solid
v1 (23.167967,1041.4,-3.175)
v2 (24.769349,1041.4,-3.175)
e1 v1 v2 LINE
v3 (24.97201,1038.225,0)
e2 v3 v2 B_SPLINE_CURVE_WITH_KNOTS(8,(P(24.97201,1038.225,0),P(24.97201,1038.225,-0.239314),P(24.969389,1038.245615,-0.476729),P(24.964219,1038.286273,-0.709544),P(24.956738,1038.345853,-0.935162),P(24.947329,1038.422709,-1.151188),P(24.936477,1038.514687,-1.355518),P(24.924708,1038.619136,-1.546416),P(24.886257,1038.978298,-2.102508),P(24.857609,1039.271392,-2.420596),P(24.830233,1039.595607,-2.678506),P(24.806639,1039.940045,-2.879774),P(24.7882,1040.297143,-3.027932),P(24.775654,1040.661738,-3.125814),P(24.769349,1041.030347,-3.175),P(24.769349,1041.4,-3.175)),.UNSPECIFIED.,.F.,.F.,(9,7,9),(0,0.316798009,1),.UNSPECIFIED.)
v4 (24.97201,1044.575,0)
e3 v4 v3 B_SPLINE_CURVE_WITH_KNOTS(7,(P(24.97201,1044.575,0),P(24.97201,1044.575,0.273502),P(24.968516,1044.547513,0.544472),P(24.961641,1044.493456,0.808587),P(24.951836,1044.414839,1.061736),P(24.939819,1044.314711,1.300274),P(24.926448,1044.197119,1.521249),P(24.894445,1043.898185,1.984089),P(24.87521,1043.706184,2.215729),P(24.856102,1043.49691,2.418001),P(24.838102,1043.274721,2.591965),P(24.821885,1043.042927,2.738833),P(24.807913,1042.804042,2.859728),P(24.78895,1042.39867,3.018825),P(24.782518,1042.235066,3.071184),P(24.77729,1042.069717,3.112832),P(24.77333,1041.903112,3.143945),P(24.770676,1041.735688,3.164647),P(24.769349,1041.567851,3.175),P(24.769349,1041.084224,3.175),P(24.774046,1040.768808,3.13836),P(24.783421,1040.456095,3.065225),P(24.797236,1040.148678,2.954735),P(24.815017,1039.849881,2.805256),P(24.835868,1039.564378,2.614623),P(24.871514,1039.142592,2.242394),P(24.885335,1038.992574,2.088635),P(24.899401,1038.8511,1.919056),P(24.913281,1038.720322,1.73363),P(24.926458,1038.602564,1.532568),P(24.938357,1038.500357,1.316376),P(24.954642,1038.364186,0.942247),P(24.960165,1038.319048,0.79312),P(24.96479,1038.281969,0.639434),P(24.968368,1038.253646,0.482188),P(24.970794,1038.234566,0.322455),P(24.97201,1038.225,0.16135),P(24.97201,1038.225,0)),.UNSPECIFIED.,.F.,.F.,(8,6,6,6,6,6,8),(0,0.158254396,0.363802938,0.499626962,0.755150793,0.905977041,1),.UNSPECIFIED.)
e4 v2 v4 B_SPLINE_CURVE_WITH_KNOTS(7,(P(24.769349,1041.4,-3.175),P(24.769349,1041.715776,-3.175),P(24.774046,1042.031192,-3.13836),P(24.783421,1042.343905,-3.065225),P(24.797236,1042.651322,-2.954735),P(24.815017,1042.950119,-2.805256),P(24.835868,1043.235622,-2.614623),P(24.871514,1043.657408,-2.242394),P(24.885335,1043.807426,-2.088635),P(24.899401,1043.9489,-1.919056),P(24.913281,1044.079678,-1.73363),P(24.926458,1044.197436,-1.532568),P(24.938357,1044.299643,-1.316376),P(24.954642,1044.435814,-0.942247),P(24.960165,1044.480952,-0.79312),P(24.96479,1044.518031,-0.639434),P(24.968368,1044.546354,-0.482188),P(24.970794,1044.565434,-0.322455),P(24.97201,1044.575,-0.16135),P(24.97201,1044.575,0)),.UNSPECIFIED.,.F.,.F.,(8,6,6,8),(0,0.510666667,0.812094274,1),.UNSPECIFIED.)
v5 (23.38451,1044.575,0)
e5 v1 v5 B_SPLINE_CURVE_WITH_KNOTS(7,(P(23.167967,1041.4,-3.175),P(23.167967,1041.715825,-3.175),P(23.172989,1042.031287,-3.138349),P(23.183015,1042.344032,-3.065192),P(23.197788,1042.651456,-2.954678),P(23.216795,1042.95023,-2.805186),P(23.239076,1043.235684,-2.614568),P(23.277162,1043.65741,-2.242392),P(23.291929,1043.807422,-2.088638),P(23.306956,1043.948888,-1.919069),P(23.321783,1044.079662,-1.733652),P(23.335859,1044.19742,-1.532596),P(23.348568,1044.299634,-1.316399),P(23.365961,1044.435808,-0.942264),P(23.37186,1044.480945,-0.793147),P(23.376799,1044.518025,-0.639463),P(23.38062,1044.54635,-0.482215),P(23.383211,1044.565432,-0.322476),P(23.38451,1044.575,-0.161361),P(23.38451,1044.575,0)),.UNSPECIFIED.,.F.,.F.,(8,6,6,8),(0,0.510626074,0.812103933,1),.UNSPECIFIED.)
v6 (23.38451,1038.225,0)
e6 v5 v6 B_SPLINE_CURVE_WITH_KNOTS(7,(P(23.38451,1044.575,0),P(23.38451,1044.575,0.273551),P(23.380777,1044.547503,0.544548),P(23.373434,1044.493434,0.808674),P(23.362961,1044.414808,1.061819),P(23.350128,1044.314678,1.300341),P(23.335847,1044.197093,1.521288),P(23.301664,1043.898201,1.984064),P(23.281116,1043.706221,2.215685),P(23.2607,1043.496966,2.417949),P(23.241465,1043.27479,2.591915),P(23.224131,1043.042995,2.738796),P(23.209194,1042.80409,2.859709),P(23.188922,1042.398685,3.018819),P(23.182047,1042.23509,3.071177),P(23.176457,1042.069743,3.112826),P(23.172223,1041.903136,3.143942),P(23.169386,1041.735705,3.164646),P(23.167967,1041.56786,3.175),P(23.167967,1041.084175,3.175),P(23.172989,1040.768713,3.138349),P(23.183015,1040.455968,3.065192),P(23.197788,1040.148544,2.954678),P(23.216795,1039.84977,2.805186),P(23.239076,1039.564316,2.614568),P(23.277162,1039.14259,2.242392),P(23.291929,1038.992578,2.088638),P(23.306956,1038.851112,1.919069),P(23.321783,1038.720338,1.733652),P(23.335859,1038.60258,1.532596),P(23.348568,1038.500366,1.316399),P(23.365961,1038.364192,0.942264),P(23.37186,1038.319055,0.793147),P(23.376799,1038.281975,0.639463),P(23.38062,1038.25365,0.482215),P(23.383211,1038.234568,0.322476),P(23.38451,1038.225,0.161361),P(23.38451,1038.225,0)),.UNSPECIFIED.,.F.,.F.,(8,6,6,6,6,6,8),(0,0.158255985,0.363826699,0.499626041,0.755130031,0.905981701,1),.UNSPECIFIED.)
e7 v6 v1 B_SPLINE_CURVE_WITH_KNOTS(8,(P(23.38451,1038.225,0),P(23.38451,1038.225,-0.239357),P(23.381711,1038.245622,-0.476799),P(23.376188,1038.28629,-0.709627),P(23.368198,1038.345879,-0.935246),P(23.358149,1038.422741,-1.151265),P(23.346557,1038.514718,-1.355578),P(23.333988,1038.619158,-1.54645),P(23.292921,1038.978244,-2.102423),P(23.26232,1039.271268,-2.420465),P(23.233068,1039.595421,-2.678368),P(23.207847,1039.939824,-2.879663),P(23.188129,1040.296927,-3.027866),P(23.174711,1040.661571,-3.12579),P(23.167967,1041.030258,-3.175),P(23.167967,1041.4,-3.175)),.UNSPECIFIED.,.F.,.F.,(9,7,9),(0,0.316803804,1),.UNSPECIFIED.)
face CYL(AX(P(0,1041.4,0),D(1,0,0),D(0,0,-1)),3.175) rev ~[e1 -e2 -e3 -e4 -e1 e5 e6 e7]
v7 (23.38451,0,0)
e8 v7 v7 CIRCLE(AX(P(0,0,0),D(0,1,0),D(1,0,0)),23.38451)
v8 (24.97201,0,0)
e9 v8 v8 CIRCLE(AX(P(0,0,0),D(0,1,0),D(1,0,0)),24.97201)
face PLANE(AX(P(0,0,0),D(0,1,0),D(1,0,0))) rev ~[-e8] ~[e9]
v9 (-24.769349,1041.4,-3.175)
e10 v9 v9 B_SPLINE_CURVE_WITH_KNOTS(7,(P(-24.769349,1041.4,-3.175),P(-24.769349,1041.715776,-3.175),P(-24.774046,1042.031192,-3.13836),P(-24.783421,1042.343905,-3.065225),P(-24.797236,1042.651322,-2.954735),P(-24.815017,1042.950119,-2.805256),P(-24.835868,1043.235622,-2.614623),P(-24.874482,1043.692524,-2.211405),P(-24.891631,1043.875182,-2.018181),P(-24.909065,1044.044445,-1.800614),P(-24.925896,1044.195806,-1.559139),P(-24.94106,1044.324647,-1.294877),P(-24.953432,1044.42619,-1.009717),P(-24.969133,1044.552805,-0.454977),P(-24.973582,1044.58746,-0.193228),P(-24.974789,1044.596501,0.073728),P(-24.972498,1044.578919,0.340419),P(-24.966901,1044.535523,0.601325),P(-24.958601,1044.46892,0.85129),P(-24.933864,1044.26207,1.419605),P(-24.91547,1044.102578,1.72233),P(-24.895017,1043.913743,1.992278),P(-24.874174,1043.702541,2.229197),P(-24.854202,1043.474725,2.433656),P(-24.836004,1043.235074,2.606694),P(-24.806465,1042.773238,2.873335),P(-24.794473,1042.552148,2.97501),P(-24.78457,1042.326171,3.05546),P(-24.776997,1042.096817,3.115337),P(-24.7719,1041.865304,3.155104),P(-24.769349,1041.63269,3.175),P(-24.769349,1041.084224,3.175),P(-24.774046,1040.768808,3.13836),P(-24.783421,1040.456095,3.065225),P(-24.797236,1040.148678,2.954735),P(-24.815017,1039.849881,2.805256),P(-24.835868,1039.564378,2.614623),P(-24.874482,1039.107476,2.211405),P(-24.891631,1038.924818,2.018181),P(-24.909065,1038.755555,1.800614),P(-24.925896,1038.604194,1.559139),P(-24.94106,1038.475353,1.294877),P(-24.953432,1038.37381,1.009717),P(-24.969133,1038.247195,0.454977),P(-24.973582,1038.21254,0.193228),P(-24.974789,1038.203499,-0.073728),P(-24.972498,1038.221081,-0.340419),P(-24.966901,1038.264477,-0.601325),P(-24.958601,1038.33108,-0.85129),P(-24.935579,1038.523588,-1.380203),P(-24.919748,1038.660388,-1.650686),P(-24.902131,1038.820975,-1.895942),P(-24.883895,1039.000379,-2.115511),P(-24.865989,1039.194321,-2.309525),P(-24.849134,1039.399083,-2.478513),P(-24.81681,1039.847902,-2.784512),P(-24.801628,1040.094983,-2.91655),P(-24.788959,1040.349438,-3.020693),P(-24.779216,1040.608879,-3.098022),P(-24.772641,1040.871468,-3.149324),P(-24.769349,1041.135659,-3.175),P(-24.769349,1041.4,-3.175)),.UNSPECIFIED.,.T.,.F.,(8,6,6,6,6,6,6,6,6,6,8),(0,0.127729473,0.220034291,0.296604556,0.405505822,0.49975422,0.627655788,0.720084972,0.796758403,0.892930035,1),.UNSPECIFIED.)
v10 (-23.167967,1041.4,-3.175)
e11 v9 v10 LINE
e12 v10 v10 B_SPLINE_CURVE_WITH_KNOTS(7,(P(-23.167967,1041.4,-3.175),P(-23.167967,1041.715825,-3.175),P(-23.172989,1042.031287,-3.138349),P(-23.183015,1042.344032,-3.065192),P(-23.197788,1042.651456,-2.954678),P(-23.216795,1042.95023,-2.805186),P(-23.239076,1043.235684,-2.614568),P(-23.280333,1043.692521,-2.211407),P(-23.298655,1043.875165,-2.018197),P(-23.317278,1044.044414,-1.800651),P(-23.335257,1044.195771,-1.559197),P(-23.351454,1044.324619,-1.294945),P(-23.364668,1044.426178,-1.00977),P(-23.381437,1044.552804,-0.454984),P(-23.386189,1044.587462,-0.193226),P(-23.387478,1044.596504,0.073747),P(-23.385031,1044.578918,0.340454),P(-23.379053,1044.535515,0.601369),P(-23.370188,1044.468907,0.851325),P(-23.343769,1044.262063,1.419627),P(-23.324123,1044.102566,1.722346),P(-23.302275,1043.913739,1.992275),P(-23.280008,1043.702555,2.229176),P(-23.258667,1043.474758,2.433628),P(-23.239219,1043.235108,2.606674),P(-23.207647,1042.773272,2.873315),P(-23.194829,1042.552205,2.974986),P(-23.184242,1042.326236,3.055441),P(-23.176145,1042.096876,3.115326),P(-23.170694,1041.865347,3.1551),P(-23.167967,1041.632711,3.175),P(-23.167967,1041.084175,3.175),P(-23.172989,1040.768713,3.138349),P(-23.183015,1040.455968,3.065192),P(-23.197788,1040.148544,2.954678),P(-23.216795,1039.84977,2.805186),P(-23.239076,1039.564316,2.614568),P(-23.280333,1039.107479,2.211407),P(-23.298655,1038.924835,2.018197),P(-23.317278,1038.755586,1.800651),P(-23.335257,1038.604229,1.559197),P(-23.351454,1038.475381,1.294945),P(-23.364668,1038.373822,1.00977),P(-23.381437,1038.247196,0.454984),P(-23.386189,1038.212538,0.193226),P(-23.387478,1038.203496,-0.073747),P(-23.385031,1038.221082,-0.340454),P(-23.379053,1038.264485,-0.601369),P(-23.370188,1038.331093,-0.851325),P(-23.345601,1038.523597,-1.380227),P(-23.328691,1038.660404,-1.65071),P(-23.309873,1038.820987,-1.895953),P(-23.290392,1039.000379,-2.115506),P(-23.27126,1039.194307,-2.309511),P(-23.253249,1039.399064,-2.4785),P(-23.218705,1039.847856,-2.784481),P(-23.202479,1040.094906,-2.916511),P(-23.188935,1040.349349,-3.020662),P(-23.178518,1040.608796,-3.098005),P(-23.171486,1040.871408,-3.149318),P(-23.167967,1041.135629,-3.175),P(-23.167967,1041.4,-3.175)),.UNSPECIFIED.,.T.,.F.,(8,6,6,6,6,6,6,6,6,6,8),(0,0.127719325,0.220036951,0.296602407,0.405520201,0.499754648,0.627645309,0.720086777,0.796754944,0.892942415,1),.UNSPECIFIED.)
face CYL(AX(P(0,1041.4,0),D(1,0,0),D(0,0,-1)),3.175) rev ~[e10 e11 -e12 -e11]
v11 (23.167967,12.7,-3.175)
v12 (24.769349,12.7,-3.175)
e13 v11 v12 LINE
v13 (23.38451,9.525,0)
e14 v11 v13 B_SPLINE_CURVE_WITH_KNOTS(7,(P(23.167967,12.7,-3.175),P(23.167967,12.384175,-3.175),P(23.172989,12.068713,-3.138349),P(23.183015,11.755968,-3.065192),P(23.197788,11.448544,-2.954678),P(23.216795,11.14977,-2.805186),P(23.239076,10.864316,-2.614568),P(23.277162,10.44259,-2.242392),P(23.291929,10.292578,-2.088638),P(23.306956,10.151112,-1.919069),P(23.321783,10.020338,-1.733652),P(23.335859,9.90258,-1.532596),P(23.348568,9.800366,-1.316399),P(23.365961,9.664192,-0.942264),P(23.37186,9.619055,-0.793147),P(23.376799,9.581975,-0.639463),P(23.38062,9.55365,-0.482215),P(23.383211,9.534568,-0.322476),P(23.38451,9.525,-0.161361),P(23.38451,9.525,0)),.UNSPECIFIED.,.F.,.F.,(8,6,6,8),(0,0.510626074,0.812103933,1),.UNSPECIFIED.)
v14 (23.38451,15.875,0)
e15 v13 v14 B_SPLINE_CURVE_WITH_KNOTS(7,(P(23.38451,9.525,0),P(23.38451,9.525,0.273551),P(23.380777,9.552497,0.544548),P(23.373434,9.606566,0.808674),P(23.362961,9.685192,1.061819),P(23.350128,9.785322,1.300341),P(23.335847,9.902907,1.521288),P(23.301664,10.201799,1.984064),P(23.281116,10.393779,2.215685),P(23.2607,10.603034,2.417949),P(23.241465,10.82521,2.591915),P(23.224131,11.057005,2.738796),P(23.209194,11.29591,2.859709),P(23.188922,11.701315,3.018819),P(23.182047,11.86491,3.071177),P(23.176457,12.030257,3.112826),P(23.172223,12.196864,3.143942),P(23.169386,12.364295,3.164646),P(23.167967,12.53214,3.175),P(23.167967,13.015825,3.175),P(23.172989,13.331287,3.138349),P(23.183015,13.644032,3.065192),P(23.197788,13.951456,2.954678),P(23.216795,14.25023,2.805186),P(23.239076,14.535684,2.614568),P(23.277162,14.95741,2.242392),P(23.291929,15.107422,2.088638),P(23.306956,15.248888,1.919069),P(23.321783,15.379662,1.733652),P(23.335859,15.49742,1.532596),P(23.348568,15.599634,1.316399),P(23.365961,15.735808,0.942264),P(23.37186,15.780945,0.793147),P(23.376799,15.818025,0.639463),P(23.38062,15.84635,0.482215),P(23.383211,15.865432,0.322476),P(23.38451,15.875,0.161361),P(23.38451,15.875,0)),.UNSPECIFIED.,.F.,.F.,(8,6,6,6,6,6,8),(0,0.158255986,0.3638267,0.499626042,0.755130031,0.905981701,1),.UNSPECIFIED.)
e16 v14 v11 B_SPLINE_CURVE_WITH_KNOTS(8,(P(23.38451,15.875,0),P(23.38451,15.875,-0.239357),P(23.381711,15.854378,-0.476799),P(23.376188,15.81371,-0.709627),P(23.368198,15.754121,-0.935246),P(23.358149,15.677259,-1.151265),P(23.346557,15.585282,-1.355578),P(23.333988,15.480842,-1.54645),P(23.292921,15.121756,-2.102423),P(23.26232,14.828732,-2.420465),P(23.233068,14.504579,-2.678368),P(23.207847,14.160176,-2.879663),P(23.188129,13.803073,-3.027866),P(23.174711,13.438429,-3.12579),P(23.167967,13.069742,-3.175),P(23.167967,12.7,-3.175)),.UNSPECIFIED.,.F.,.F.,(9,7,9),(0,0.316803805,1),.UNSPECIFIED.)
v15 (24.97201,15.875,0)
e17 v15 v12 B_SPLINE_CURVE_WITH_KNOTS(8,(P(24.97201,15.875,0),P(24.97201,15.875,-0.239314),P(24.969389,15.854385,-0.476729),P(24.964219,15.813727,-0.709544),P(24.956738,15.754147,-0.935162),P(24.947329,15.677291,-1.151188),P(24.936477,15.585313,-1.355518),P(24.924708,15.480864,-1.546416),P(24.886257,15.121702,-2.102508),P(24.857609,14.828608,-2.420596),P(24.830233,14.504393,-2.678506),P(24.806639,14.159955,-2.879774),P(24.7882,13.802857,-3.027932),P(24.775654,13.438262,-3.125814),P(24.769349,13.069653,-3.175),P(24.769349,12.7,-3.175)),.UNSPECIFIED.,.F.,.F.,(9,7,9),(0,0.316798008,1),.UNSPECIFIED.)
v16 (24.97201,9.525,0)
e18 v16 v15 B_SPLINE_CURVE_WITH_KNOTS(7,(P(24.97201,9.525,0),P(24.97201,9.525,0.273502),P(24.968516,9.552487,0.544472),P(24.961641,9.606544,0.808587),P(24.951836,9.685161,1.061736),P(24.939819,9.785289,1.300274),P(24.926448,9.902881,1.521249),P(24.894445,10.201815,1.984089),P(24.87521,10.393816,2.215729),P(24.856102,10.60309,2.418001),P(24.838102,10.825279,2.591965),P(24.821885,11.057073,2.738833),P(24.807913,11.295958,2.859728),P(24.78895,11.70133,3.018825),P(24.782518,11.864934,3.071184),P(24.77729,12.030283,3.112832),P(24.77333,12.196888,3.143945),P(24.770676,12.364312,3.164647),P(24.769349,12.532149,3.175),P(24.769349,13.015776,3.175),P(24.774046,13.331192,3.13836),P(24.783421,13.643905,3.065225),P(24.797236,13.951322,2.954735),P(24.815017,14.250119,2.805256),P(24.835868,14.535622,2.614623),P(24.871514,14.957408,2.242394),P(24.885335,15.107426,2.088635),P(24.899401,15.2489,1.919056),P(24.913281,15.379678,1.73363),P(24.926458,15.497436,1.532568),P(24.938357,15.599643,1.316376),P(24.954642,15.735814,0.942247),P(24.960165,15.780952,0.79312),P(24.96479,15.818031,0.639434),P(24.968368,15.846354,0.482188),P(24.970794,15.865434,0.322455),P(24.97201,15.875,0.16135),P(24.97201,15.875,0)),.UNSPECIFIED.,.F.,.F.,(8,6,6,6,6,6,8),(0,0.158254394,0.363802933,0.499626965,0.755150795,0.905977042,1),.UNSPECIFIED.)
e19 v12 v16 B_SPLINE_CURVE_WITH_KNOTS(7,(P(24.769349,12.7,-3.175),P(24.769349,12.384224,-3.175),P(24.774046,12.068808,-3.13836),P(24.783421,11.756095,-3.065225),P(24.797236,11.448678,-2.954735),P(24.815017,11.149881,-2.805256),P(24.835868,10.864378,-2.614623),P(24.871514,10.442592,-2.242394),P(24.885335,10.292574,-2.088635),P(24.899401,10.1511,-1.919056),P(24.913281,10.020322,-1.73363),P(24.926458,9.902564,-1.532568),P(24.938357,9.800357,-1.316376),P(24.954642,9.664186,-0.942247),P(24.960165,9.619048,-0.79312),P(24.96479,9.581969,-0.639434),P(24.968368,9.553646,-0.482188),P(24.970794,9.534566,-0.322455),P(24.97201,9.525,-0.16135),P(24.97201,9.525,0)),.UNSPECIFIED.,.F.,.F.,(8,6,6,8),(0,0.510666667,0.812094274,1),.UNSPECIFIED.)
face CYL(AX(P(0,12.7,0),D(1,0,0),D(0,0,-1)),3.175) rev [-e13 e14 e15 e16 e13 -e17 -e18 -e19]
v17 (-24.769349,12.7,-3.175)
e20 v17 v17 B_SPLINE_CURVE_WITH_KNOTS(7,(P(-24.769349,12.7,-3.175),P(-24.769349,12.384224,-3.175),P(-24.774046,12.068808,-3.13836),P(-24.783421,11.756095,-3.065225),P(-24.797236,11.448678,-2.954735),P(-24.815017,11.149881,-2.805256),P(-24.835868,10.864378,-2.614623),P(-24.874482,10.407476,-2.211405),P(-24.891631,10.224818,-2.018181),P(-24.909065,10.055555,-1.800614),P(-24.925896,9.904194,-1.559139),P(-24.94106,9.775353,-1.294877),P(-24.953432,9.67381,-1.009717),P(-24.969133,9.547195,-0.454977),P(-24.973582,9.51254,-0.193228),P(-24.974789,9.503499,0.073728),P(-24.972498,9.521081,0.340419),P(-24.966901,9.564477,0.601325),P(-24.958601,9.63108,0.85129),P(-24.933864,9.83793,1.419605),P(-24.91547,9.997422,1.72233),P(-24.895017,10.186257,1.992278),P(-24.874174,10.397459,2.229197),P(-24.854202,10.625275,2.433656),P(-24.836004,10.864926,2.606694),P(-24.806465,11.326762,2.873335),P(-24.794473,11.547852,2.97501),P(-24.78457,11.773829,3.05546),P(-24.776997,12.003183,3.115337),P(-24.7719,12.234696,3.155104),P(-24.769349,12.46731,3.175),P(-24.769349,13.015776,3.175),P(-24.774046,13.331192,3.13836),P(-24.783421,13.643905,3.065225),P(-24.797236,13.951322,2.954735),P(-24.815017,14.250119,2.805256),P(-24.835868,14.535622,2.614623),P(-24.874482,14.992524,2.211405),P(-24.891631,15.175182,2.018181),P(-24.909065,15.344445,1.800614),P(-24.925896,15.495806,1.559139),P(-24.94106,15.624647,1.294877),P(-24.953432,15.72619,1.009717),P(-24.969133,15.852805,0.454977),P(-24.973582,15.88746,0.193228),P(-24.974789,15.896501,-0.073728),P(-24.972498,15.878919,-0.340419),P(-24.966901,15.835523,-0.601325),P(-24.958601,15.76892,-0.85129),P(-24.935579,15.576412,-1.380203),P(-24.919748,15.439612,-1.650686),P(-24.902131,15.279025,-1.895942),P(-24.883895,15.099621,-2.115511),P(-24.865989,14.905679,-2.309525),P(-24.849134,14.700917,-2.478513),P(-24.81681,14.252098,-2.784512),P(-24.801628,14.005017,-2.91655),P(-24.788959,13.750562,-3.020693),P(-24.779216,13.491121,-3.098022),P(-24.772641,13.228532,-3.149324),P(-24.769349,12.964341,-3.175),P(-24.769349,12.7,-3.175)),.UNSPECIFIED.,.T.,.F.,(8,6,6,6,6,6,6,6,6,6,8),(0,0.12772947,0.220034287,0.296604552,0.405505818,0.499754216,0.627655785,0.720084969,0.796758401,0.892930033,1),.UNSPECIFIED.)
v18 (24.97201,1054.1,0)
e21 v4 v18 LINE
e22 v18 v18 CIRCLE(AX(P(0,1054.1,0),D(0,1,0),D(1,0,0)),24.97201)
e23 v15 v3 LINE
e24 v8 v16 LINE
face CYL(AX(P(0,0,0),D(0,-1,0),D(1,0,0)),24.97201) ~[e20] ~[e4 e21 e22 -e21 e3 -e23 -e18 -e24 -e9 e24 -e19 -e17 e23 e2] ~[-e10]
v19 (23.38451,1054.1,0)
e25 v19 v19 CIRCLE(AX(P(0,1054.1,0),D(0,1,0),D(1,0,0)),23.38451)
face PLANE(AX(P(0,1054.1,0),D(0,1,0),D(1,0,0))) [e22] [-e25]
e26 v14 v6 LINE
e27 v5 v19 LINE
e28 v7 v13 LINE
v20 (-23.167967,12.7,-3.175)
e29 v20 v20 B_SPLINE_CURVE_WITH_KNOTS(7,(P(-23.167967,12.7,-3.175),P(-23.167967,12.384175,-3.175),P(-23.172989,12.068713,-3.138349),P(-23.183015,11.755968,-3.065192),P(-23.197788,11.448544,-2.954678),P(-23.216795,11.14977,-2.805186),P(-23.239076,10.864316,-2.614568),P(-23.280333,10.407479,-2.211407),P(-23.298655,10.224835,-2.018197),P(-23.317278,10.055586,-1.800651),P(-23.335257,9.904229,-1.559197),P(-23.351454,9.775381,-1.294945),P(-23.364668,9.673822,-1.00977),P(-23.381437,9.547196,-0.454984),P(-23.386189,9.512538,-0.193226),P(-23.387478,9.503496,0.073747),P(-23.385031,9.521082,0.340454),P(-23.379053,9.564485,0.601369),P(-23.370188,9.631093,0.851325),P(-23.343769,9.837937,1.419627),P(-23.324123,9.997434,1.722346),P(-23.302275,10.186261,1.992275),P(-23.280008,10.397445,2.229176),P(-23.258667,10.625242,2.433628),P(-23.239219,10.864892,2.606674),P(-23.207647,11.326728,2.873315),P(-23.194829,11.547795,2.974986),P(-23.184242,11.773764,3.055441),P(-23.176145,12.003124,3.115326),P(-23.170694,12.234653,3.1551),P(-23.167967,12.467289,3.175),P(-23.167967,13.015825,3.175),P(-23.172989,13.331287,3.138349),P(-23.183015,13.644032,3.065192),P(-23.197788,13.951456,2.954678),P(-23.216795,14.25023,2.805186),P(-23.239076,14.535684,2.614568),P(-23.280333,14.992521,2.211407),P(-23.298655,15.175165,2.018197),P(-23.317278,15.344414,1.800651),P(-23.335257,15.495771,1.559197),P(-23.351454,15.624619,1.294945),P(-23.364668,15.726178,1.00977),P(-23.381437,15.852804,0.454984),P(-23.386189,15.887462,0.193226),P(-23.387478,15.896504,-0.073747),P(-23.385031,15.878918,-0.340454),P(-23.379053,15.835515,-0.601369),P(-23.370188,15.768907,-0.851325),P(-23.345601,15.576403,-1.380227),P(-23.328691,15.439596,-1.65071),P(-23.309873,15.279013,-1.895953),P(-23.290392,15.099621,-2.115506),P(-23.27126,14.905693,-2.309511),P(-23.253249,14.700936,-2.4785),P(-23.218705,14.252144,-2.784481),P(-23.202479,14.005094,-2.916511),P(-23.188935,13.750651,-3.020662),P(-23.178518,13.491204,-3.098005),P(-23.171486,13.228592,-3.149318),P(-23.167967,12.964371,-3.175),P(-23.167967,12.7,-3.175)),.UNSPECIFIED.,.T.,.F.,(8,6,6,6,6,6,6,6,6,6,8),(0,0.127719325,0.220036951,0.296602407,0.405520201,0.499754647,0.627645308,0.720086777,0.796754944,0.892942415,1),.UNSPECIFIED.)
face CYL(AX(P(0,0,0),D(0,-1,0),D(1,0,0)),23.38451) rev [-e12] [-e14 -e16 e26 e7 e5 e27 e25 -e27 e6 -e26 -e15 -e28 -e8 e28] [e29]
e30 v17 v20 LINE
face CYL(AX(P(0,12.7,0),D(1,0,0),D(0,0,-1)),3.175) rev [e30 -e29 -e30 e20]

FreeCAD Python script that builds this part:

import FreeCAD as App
import Part
import Sketcher
Q = App.Units.Quantity

doc = App.newDocument("Part")
body = doc.addObject("PartDesign::Body", "Body")

sketch1 = body.newObject("Sketcher::SketchObject", "Sketch")
sketch1.AttachmentSupport = (doc.getObject("XZ_Plane"), [""])
sketch1.MapMode = "FlatFace"
sketch1.addGeometry([
    Part.Circle(App.Vector(0, 0, 0), App.Vector(0, 0, 1), 25),
    Part.Circle(App.Vector(0, 0, 0), App.Vector(0, 0, 1), 23),
], False)
sketch1.addConstraint([
    Sketcher.Constraint("Coincident", 0, 3, -1, 1),
    Sketcher.Constraint("Coincident", 1, 3, -1, 1),
    Sketcher.Constraint("Diameter", 0, Q("1.9663 in")),
    Sketcher.Constraint("Diameter", 1, Q("1.8413 in")),
])
pad1 = body.newObject("PartDesign::Pad", "Pad")
pad1.Profile = sketch1
pad1.Length = Q("41.5 in")
pad1.Reversed = True

sketch2 = body.newObject("Sketcher::SketchObject", "Sketch001")
sketch2.AttachmentSupport = (doc.getObject("YZ_Plane"), [""])
sketch2.MapMode = "FlatFace"
sketch2.addGeometry(Part.Circle(App.Vector(1041.4, 0, 0), App.Vector(0, 0, 1), 3.2), False)
sketch2.addConstraint([
    Sketcher.Constraint("PointOnObject", 0, 3, -1),
    Sketcher.Constraint("Diameter", 0, Q("0.25 in")),
    Sketcher.Constraint("DistanceX", -1, 1, 0, 3, Q("41 in")),
])
pocket1 = body.newObject("PartDesign::Pocket", "Pocket")
pocket1.Profile = sketch2
pocket1.Length = 51.94402
pocket1.Midplane = True
doc.recompute()

datumplane = body.newObject("PartDesign::Plane", "DatumPlane")
datumplane.AttachmentSupport = (doc.getObject("XZ_Plane"), [""])
datumplane.MapMode = "FlatFace"
datumplane.AttachmentOffset = App.Placement(App.Vector(0, 0, -20.75 * 25.4), App.Rotation())
mirrored = body.newObject("PartDesign::Mirrored", "Mirrored")
mirrored.Originals = [pocket1]
mirrored.MirrorPlane = (datumplane, [""])
body.Tip = mirrored

doc.recompute()
